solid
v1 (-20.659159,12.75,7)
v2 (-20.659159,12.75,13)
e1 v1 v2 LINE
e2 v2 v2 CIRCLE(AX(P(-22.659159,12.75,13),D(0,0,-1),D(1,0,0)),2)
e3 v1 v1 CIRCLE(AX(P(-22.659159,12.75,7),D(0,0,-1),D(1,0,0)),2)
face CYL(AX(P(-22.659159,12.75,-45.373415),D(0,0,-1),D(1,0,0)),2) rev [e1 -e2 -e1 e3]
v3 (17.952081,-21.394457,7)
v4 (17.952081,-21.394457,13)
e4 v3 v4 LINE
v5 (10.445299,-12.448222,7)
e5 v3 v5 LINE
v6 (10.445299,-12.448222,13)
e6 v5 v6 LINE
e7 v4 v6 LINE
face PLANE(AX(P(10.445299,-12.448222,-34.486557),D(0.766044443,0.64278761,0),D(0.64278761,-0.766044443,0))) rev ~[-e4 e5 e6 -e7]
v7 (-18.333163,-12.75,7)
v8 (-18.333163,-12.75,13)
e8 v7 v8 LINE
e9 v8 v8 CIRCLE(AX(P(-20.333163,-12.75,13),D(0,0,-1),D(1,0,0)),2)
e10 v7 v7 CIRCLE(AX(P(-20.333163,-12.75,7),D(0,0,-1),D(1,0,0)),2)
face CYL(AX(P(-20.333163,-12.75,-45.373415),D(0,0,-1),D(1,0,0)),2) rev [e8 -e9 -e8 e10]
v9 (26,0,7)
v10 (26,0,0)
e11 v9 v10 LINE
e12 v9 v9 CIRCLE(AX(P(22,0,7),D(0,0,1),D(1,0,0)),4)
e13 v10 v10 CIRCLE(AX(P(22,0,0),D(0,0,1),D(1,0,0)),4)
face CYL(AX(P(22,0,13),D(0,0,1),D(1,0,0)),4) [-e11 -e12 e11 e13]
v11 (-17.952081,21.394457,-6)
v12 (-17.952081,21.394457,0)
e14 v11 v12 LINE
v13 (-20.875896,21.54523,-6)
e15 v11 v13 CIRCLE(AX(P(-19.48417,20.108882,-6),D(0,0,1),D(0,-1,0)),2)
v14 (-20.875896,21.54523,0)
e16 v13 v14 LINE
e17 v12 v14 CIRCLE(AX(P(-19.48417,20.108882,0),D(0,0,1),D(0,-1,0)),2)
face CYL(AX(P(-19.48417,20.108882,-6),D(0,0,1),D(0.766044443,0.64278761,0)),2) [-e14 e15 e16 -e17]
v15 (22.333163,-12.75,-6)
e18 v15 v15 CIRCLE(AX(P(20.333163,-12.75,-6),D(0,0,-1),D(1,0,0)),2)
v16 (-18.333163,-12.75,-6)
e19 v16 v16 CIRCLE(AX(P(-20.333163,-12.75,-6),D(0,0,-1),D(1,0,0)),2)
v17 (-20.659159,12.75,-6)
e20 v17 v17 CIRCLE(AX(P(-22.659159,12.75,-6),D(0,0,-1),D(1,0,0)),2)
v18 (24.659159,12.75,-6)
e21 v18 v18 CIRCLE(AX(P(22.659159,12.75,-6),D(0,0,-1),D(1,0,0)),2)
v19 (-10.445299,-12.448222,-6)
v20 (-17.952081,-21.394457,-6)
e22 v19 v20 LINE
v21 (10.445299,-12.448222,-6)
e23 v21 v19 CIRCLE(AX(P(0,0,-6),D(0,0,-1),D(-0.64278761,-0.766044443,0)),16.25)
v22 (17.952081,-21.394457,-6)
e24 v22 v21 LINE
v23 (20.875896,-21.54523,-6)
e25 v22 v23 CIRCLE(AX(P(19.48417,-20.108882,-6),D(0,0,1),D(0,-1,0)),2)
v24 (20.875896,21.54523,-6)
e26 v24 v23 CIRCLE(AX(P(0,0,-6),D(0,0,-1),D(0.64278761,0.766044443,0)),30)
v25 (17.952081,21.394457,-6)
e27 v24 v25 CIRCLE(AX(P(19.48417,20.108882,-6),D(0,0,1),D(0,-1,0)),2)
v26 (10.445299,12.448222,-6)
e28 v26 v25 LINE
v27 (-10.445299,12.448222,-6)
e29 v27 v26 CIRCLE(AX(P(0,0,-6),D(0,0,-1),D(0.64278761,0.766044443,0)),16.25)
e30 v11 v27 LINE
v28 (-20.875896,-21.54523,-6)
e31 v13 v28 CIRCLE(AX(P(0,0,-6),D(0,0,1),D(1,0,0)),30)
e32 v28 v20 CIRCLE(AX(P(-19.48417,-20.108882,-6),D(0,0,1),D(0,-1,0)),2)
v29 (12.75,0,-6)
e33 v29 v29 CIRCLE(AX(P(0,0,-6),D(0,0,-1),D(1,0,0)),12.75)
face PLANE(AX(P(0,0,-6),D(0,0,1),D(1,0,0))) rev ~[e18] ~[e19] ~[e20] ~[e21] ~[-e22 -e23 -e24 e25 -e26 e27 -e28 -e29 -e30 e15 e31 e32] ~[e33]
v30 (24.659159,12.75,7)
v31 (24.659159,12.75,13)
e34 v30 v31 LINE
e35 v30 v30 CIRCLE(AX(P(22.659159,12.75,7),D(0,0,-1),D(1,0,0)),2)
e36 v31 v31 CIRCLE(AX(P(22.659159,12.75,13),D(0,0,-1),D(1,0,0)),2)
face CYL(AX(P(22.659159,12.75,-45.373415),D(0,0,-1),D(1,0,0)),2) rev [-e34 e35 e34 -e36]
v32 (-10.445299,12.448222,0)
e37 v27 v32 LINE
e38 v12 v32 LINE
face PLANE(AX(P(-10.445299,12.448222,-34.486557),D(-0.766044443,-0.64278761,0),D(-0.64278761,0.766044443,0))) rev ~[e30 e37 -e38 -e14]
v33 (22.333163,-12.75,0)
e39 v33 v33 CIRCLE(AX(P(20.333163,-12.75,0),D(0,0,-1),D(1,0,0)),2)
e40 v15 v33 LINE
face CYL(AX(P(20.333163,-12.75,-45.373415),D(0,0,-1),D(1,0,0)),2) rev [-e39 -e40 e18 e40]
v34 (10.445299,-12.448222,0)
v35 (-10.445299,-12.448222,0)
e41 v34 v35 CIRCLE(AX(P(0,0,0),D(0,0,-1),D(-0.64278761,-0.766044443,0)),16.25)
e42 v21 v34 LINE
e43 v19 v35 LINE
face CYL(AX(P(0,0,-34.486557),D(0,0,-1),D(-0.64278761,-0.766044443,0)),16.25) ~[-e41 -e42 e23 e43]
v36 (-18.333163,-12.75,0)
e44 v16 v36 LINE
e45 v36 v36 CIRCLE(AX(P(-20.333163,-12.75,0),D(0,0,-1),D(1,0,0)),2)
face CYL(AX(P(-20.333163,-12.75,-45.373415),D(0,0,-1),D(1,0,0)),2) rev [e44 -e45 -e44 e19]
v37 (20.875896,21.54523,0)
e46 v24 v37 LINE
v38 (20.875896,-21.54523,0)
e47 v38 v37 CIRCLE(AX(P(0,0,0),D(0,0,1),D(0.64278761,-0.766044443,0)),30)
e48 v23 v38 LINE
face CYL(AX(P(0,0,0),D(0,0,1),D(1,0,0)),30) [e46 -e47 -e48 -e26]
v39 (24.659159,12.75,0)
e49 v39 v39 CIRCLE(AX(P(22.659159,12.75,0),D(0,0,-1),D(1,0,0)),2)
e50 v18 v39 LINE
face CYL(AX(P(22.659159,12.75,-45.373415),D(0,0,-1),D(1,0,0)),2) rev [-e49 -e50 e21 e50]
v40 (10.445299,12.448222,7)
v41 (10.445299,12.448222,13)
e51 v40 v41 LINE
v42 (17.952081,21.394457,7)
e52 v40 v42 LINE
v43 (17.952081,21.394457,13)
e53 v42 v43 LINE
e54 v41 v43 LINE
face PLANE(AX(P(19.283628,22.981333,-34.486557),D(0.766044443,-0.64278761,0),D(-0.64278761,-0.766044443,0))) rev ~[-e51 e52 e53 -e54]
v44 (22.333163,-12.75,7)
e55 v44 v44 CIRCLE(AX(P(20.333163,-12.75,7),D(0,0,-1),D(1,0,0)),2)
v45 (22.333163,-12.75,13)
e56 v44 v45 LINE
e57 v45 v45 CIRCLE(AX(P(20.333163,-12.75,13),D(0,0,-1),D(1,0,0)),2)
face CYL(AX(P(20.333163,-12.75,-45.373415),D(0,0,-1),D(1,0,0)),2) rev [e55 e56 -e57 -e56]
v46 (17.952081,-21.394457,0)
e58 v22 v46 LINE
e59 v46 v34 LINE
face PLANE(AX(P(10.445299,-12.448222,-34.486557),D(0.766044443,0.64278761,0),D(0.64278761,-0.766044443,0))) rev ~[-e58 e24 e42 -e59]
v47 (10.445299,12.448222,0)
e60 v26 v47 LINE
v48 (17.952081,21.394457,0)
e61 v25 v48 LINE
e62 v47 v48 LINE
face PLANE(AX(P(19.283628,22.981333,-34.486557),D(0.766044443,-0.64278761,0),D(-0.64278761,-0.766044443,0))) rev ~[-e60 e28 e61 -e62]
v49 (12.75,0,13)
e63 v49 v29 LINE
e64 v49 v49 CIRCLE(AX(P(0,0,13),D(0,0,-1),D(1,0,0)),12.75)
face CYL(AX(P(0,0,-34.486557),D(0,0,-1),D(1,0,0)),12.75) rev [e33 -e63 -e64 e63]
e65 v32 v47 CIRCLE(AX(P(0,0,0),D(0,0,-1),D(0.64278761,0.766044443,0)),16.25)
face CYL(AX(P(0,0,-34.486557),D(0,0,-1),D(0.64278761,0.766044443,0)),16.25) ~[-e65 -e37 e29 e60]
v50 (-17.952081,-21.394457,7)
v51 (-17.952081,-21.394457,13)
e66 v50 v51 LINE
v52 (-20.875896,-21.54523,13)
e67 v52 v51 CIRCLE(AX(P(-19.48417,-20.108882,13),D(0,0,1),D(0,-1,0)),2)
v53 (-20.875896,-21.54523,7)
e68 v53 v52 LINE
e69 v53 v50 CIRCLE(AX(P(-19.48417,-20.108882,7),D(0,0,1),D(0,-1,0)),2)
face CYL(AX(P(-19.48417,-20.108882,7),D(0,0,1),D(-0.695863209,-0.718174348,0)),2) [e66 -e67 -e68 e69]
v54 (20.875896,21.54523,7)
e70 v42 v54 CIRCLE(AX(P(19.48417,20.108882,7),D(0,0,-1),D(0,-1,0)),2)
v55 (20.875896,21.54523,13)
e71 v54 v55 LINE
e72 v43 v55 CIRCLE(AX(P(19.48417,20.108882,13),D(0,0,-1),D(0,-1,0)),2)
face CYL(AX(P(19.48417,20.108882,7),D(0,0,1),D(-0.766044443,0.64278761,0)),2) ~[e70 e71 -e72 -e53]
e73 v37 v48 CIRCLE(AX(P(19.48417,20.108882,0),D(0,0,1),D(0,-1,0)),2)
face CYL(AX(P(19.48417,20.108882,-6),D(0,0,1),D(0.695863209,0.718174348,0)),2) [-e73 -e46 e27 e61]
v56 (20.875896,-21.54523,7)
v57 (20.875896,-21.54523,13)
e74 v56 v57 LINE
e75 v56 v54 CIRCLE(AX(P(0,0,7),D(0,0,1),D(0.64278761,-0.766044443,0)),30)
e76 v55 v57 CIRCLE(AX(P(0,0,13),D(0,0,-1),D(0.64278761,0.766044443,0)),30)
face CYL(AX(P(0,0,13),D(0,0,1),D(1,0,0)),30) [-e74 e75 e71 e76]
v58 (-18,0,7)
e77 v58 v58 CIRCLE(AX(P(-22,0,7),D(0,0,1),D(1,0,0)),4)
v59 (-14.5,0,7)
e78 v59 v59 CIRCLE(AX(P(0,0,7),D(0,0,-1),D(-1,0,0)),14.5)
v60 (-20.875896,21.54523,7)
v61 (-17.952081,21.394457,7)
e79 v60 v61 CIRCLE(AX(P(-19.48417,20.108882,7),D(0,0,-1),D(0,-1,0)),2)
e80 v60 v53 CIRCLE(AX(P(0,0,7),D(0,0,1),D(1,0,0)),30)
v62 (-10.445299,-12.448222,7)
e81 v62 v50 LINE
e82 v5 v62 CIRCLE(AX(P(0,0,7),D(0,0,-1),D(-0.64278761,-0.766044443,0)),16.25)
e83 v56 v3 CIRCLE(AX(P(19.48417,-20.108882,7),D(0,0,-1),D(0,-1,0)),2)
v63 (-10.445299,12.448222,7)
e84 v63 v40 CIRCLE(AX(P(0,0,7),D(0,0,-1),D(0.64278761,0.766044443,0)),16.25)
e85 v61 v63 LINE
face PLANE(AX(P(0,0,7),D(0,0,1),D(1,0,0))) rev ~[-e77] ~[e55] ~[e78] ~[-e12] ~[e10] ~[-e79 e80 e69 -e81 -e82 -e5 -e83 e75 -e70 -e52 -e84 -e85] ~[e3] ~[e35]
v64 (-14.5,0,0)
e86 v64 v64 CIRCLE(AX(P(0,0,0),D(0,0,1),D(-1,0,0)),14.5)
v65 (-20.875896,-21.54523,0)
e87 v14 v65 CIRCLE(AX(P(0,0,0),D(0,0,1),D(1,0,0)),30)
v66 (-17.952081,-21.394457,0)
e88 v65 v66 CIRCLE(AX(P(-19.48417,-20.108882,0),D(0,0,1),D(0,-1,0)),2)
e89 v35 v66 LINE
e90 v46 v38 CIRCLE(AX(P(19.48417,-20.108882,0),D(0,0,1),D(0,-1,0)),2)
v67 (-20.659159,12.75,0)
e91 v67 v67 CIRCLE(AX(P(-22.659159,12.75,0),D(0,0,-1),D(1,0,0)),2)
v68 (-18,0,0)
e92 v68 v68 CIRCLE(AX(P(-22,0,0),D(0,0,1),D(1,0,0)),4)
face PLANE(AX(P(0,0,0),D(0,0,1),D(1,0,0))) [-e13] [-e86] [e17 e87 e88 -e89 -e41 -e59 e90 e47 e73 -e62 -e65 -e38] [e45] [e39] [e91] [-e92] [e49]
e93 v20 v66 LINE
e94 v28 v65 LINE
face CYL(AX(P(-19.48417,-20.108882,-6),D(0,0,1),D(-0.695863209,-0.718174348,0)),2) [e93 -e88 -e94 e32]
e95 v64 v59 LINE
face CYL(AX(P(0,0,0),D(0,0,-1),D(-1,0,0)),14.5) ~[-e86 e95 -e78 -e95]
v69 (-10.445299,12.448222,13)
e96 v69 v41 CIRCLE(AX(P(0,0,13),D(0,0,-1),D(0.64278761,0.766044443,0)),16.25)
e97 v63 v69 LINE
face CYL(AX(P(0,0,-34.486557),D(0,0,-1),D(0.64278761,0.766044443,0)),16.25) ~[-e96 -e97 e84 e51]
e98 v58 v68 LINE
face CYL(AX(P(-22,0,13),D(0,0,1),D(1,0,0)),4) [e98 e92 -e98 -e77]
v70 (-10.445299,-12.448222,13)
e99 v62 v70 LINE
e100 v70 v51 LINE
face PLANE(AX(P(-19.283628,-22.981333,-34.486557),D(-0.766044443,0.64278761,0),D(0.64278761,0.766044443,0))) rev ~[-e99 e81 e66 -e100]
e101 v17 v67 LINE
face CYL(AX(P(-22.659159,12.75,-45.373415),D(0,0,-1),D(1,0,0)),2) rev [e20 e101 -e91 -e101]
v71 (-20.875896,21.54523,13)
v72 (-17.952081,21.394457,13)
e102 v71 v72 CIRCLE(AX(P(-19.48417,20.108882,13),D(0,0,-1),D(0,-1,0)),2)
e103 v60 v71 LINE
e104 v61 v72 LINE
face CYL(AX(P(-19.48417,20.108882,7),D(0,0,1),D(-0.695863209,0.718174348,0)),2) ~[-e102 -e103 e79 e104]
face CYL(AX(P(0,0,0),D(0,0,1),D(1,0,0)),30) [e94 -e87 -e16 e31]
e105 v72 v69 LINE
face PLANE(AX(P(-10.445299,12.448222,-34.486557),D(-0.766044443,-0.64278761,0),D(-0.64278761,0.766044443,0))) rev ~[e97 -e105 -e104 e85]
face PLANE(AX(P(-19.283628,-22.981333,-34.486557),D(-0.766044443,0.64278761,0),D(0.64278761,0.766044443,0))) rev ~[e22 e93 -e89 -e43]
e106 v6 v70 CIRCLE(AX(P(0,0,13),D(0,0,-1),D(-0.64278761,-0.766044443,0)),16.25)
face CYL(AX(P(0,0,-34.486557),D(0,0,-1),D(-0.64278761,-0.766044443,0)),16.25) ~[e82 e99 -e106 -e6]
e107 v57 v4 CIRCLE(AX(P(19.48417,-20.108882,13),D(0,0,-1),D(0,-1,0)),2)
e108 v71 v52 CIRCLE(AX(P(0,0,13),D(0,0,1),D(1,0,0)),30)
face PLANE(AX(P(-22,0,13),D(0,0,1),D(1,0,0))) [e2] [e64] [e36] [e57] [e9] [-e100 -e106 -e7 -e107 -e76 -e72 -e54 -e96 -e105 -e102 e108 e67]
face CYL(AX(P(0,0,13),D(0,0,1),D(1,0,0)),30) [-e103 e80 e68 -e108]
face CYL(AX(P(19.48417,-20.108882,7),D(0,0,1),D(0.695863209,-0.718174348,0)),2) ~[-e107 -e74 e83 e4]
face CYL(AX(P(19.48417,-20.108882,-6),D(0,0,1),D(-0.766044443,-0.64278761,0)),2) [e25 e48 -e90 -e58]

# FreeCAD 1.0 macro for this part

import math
import FreeCAD as App
import Part
import Sketcher
from FreeCAD import Vector
Q = App.Units.Quantity


def edges_at(feature, points):
    """Names of the edges that pass closest to the given points."""
    edges = feature.Shape.Edges
    near = lambda p: min(range(len(edges)), key=lambda i: edges[i].distToShape(Part.Vertex(*p))[0])
    return sorted({f"Edge{near(p) + 1}" for p in points})

doc = App.newDocument("Part")
body = doc.addObject("PartDesign::Body", "Body")

# Sketch on XY plane
sketch1 = body.newObject("Sketcher::SketchObject", "Sketch")
sketch1.AttachmentSupport = (doc.getObject("XY_Plane"), [""])
sketch1.MapMode = "FlatFace"
sketch1.addGeometry(Part.Circle(Vector(0, 0, 0), Vector(0, 0, 1), 30), False)
sketch1.addConstraint([
    Sketcher.Constraint("Coincident", 0, 3, -1, 1),
    Sketcher.Constraint("Diameter", 0, Q("60 mm")),
])
pad1 = body.newObject("PartDesign::Pad", "Pad")
pad1.Profile = sketch1
pad1.Length = 6
pad1.Reversed = True

# Sketch on XY plane
sketch2 = body.newObject("Sketcher::SketchObject", "Sketch001")
sketch2.AttachmentSupport = (doc.getObject("XY_Plane"), [""])
sketch2.MapMode = "FlatFace"
sketch2.addGeometry(Part.Circle(Vector(0, 0, 0), Vector(0, 0, 1), 14), False)
sketch2.addConstraint([
    Sketcher.Constraint("Coincident", 0, 3, -1, 1),
    Sketcher.Constraint("Diameter", 0, Q("29 mm")),
])
pad2 = body.newObject("PartDesign::Pad", "Pad001")
pad2.Profile = sketch2
pad2.Length = 13

# Sketch on XY plane
sketch3 = body.newObject("Sketcher::SketchObject", "Sketch002")
sketch3.AttachmentSupport = (doc.getObject("XY_Plane"), [""])
sketch3.MapMode = "FlatFace"
sketch3.AttachmentOffset = App.Placement(Vector(0, 0, 13), App.Rotation())
sketch3.addGeometry(Part.Circle(Vector(0, 0, 0), Vector(0, 0, 1), 13), False)
sketch3.addConstraint([
    Sketcher.Constraint("Coincident", 0, 3, -1, 1),
    Sketcher.Constraint("Diameter", 0, Q("25.5 mm")),
])
pocket1 = body.newObject("PartDesign::Pocket", "Pocket")
pocket1.Profile = sketch3
pocket1.Type = "ThroughAll"
pocket1.Midplane = True

# Sketch on XY plane
sketch4 = body.newObject("Sketcher::SketchObject", "Sketch003")
sketch4.AttachmentSupport = (doc.getObject("XY_Plane"), [""])
sketch4.MapMode = "FlatFace"
sketch4.AttachmentOffset = App.Placement(Vector(0, 0, 13), App.Rotation())
sketch4.addGeometry([
    Part.Circle(Vector(0, 0, 0), Vector(0, 0, 1), 30),
    Part.Circle(Vector(0, 0, 0), Vector(0, 0, 1), 13),
], False)
sketch4.addConstraint([
    Sketcher.Constraint("Coincident", 0, 3, -1, 1),
    Sketcher.Constraint("Coincident", 1, 3, -1, 1),
    Sketcher.Constraint("Diameter", 0, Q("60 mm")),
    Sketcher.Constraint("Diameter", 1, Q("25.5 mm")),
])
pad3 = body.newObject("PartDesign::Pad", "Pad002")
pad3.Profile = sketch4
pad3.Length = 6
pad3.Reversed = True

# Sketch on XY plane
sketch5 = body.newObject("Sketcher::SketchObject", "Sketch004")
sketch5.AttachmentSupport = (doc.getObject("XY_Plane"), [""])
sketch5.MapMode = "FlatFace"
sketch5.addGeometry([
    Part.Circle(Vector(-20.3, -12.8, 0), Vector(0, 0, 1), 2),
    Part.Circle(Vector(-22.7, 12.8, 0), Vector(0, 0, 1), 2),
    Part.Circle(Vector(20.3, -12.8, 0), Vector(0, 0, 1), 2),
    Part.Circle(Vector(22.7, 12.8, 0), Vector(0, 0, 1), 2),
], False)
sketch5.addConstraint([
    Sketcher.Constraint("Equal", 0, 1),
    Sketcher.Constraint("Equal", 1, 2),
    Sketcher.Constraint("Equal", 2, 3),
    Sketcher.Constraint("Symmetric", 0, 3, 2, 3, -2),
    Sketcher.Constraint("Symmetric", 1, 3, 3, 3, -2),
    Sketcher.Constraint("Diameter", 0, Q("4 mm")),
    Sketcher.Constraint("DistanceY", 0, 3, 1, 3, Q("25.5 mm")),
    Sketcher.Constraint("DistanceY", 0, 3, -1, 1, Q("12.75 mm")),
    Sketcher.Constraint("DistanceX", 1, 3, -1, 1, Q("22.659159 mm")),
    Sketcher.Constraint("DistanceX", 1, 3, 2, 3, Q("42.992322 mm")),
])
pocket2 = body.newObject("PartDesign::Pocket", "Pocket001")
pocket2.Profile = sketch5
pocket2.Type = "ThroughAll"
pocket2.Midplane = True

# Sketch on XY plane
sketch6 = body.newObject("Sketcher::SketchObject", "Sketch005")
sketch6.AttachmentSupport = (doc.getObject("XY_Plane"), [""])
sketch6.MapMode = "FlatFace"
sketch6.AttachmentOffset = App.Placement(Vector(0, 0, 13), App.Rotation())
sketch6.addGeometry([
    Part.LineSegment(Vector(19, -23, 0), Vector(10, -12, 0)),  # 0
    Part.ArcOfCircle(Part.Circle(Vector(0, 0, 0), Vector(0, 0, 1), 16), math.radians(-130), math.radians(-50)),  # 1
    Part.LineSegment(Vector(-10, -12, 0), Vector(-19, -23, 0)),  # 2
    Part.ArcOfCircle(Part.Circle(Vector(0, 0, 0), Vector(0, 0, 1), 30), math.radians(-130), math.radians(-50)),  # 3
    Part.LineSegment(Vector(-19, 23, 0), Vector(-10, 12, 0)),  # 4
    Part.ArcOfCircle(Part.Circle(Vector(0, 0, 0), Vector(0, 0, 1), 16), math.radians(50), math.radians(130)),  # 5
    Part.LineSegment(Vector(10, 12, 0), Vector(19, 23, 0)),  # 6
    Part.ArcOfCircle(Part.Circle(Vector(0, 0, 0), Vector(0, 0, 1), 30), math.radians(50), math.radians(130)),  # 7
], False)
sketch6.addConstraint([
    Sketcher.Constraint("Coincident", 0, 2, 1, 2),
    Sketcher.Constraint("Coincident", 1, 1, 2, 1),
    Sketcher.Constraint("Coincident", 2, 2, 3, 1),
    Sketcher.Constraint("Coincident", 3, 2, 0, 1),
    Sketcher.Constraint("Coincident", 4, 2, 5, 2),
    Sketcher.Constraint("Coincident", 5, 1, 6, 1),
    Sketcher.Constraint("Coincident", 6, 2, 7, 1),
    Sketcher.Constraint("Coincident", 7, 2, 4, 1),
    Sketcher.Constraint("Coincident", 1, 3, -1, 1),
    Sketcher.Constraint("Coincident", 3, 3, -1, 1),
    Sketcher.Constraint("Coincident", 5, 3, -1, 1),
    Sketcher.Constraint("Coincident", 7, 3, -1, 1),
    Sketcher.Constraint("Equal", 1, 5),
    Sketcher.Constraint("Equal", 3, 7),
    Sketcher.Constraint("Parallel", 0, 4),
    Sketcher.Constraint("Parallel", 2, 6),
    Sketcher.Constraint("Horizontal", 0, 2, 1, 1),
    Sketcher.Constraint("Horizontal", 2, 2, 3, 2),
    Sketcher.Constraint("Horizontal", 4, 2, 5, 1),
    Sketcher.Constraint("Vertical", 1, 1, 4, 2),
    Sketcher.Constraint("Radius", 3, Q("30 mm")),
    Sketcher.Constraint("Angle", 0, Q("130 deg")),
    Sketcher.Constraint("Radius", 1, Q("16.25 mm")),
    Sketcher.Constraint("DistanceX", -1, 1, 0, 2, Q("10.445299 mm")),
])
pocket3 = body.newObject("PartDesign::Pocket", "Pocket002")
pocket3.Profile = sketch6
pocket3.Type = "ThroughAll"
pocket3.Midplane = True
doc.recompute()

fillet = body.newObject("PartDesign::Fillet", "Fillet")
fillet.Base = (pocket3, edges_at(pocket3, [(-19.284, -22.981, 10)]))
fillet.Radius = 2
doc.recompute()

fillet2 = body.newObject("PartDesign::Fillet", "Fillet001")
fillet2.Base = (fillet, edges_at(fillet, [(-19.284, 22.981, 10)]))
fillet2.Radius = 2
doc.recompute()

fillet3 = body.newObject("PartDesign::Fillet", "Fillet002")
fillet3.Base = (fillet2, edges_at(fillet2, [(19.284, 22.981, 10)]))
fillet3.Radius = 2
doc.recompute()

fillet4 = body.newObject("PartDesign::Fillet", "Fillet003")
fillet4.Base = (fillet3, edges_at(fillet3, [(19.284, -22.981, 10)]))
fillet4.Radius = 2

# Sketch on XY plane
sketch7 = body.newObject("Sketcher::SketchObject", "Sketch006")
sketch7.AttachmentSupport = (doc.getObject("XY_Plane"), [""])
sketch7.MapMode = "FlatFace"
sketch7.AttachmentOffset = App.Placement(Vector(0, 0, 13), App.Rotation())
sketch7.addGeometry([
    Part.Circle(Vector(-22, 0, 0), Vector(0, 0, 1), 4),
    Part.Circle(Vector(22, 0, 0), Vector(0, 0, 1), 4),
], False)
sketch7.addConstraint([
    Sketcher.Constraint("Equal", 0, 1),
    Sketcher.Constraint("Symmetric", 0, 3, 1, 3, -1, 1),
    Sketcher.Constraint("PointOnObject", 0, 3, -1),
    Sketcher.Constraint("Diameter", 0, Q("8 mm")),
    Sketcher.Constraint("DistanceX", 0, 3, -1, 1, Q("22 mm")),
])
pad4 = body.newObject("PartDesign::Pad", "Pad003")
pad4.Profile = sketch7
pad4.Length = 13
pad4.Reversed = True
doc.recompute()

fillet5 = body.newObject("PartDesign::Fillet", "Fillet004")
fillet5.Base = (pad4, edges_at(pad4, [(-19.284, 22.981, -3)]))
fillet5.Radius = 2
doc.recompute()

fillet6 = body.newObject("PartDesign::Fillet", "Fillet005")
fillet6.Base = (fillet5, edges_at(fillet5, [(-19.284, -22.981, -3)]))
fillet6.Radius = 2
doc.recompute()

fillet7 = body.newObject("PartDesign::Fillet", "Fillet006")
fillet7.Base = (fillet6, edges_at(fillet6, [(19.284, -22.981, -3)]))
fillet7.Radius = 2
doc.recompute()

fillet8 = body.newObject("PartDesign::Fillet", "Fillet007")
fillet8.Base = (fillet7, edges_at(fillet7, [(19.284, 22.981, -3)]))
fillet8.Radius = 2

doc.recompute()
